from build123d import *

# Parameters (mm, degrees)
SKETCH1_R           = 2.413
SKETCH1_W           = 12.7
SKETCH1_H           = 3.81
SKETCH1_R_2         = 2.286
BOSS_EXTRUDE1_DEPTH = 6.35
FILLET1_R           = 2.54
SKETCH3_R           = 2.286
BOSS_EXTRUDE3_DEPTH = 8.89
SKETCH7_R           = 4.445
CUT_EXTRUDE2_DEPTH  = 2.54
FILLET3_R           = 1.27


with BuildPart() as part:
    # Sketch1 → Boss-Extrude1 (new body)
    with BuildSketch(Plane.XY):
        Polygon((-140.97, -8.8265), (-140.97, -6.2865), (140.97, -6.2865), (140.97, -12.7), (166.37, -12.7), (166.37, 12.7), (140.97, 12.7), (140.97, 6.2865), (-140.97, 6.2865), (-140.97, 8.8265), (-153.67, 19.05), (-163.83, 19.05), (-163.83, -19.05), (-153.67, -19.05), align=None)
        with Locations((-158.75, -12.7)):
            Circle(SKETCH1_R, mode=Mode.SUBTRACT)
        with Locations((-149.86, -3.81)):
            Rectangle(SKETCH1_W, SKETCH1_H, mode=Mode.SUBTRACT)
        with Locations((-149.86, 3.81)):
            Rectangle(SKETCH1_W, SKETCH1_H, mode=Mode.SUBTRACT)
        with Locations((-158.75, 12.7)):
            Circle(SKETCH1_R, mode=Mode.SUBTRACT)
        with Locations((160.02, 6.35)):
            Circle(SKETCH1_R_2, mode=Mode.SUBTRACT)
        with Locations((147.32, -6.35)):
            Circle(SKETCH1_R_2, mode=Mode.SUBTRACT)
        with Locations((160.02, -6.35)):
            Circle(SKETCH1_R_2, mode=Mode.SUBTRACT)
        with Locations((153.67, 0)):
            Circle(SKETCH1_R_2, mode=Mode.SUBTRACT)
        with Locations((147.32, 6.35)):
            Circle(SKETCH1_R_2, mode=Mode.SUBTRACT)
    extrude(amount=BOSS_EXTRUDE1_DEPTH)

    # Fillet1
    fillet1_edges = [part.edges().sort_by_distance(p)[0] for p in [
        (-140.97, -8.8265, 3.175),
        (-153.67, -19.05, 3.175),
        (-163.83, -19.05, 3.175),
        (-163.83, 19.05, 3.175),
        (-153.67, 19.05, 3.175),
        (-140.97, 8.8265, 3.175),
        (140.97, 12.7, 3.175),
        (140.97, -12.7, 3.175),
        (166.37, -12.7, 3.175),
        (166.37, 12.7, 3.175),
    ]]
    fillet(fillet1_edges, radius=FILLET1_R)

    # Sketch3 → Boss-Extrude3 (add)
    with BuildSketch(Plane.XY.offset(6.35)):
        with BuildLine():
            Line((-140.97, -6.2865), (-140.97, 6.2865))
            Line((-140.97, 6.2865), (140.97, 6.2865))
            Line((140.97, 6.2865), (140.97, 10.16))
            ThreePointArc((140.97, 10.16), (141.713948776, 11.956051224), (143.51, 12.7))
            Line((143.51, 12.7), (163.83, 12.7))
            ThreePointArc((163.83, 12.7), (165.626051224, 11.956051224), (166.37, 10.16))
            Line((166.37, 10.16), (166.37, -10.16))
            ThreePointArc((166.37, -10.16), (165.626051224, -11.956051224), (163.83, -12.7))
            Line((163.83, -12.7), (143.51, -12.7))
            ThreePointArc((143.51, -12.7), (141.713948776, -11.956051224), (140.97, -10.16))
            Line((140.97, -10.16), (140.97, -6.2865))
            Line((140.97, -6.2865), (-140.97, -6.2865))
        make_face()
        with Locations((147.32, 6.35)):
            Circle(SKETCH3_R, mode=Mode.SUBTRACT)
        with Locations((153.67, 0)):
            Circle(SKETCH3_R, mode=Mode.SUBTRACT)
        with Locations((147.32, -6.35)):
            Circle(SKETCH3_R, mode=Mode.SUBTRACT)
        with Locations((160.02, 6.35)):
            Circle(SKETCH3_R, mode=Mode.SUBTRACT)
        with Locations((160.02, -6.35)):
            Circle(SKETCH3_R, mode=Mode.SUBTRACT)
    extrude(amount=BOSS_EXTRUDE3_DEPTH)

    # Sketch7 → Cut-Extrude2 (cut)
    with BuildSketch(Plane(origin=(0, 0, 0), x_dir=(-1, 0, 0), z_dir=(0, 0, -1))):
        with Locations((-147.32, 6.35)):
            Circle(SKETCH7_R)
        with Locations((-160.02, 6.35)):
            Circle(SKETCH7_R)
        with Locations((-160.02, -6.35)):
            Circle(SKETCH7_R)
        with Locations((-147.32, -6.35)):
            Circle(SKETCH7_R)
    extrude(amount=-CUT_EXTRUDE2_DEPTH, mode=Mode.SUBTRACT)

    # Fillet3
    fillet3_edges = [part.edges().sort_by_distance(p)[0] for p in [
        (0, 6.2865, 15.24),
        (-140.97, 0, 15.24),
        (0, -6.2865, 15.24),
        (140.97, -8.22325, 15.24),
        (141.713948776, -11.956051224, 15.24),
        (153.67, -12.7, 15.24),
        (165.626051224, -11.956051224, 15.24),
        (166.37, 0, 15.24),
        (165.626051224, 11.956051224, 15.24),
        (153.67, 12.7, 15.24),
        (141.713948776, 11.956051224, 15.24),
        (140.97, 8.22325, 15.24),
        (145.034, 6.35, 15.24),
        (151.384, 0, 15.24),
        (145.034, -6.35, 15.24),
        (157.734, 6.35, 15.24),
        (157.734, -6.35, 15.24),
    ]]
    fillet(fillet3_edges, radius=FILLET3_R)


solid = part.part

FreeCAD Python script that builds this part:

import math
import FreeCAD as App
import Part
import Sketcher
from FreeCAD import Vector
Q = App.Units.Quantity


def edges_at(feature, points):
    """Names of the edges that pass closest to the given points."""
    edges = feature.Shape.Edges
    near = lambda p: min(range(len(edges)), key=lambda i: edges[i].distToShape(Part.Vertex(*p))[0])
    return sorted({f"Edge{near(p) + 1}" for p in points})


def add_polygon(sketch, points):
    """Adds a closed chain of lines whose ends are joined by coincident constraints."""
    first, n = sketch.GeometryCount, len(points)
    for a, b in zip(points, points[1:] + points[:1]):
        sketch.addGeometry(Part.LineSegment(App.Vector(*a, 0), App.Vector(*b, 0)), False)
    for i in range(n):
        sketch.addConstraint(Sketcher.Constraint("Coincident", first + i, 2, first + (i + 1) % n, 1))

doc = App.newDocument("Part")
body = doc.addObject("PartDesign::Body", "Body")

sketch1 = body.newObject("Sketcher::SketchObject", "Sketch")
sketch1.AttachmentSupport = (doc.getObject("XY_Plane"), [""])
sketch1.MapMode = "FlatFace"
add_polygon(sketch1, [(-140.97, -8.8265), (-140.97, -6.2865), (140.97, -6.2865), (140.97, -12.7), (166.37, -12.7), (166.37, 12.7), (140.97, 12.7), (140.97, 6.2865), (-140.97, 6.2865), (-140.97, 8.8265), (-153.67, 19.05), (-163.83, 19.05), (-163.83, -19.05), (-153.67, -19.05)])
sketch1.addGeometry(Part.Circle(Vector(-158.75, -12.7, 0), Vector(0, 0, 1), 2.413), False)
add_polygon(sketch1, [(-143.51, -5.715), (-156.21, -5.715), (-156.21, -1.905), (-143.51, -1.905)])
sketch1.addGeometry(Part.Circle(Vector(147.32, -6.35, 0), Vector(0, 0, 1), 2.286), False)
sketch1.addGeometry(Part.Circle(Vector(160.02, -6.35, 0), Vector(0, 0, 1), 2.286), False)
add_polygon(sketch1, [(-143.51, 1.905), (-156.21, 1.905), (-156.21, 5.715), (-143.51, 5.715)])
sketch1.addGeometry(Part.Circle(Vector(-158.75, 12.7, 0), Vector(0, 0, 1), 2.413), False)
sketch1.addGeometry(Part.Circle(Vector(153.67, 0, 0), Vector(0, 0, 1), 2.286), False)
sketch1.addGeometry(Part.Circle(Vector(147.32, 6.35, 0), Vector(0, 0, 1), 2.286), False)
sketch1.addGeometry(Part.Circle(Vector(160.02, 6.35, 0), Vector(0, 0, 1), 2.286), False)
sketch1.addConstraint([
    Sketcher.Constraint("Vertical", 0),
    Sketcher.Constraint("Horizontal", 1),
    Sketcher.Constraint("Vertical", 2),
    Sketcher.Constraint("Horizontal", 3),
    Sketcher.Constraint("Vertical", 4),
    Sketcher.Constraint("Horizontal", 5),
    Sketcher.Constraint("Vertical", 6),
    Sketcher.Constraint("Horizontal", 7),
    Sketcher.Constraint("Vertical", 8),
    Sketcher.Constraint("Horizontal", 10),
    Sketcher.Constraint("Vertical", 11),
    Sketcher.Constraint("Horizontal", 12),
    Sketcher.Constraint("Horizontal", 15),
    Sketcher.Constraint("Vertical", 16),
    Sketcher.Constraint("Horizontal", 17),
    Sketcher.Constraint("Vertical", 18),
    Sketcher.Constraint("Horizontal", 21),
    Sketcher.Constraint("Vertical", 22),
    Sketcher.Constraint("Horizontal", 23),
    Sketcher.Constraint("Vertical", 24),
    Sketcher.Constraint("Equal", 19, 20),
    Sketcher.Constraint("Equal", 14, 25),
    Sketcher.Constraint("Equal", 20, 26),
    Sketcher.Constraint("Equal", 26, 27),
    Sketcher.Constraint("Equal", 27, 28),
    Sketcher.Constraint("Symmetric", 0, 2, 6, 2, -1, 1),
    Sketcher.Constraint("Symmetric", 14, 3, 25, 3, -1),
    Sketcher.Constraint("Symmetric", 19, 3, 27, 3, -1),
    Sketcher.Constraint("Symmetric", 20, 3, 28, 3, -1),
    Sketcher.Constraint("Symmetric", 2, 2, 5, 2, -1),
    Sketcher.Constraint("Symmetric", 9, 2, 12, 2, -1),
    Sketcher.Constraint("Symmetric", 8, 2, 13, 2, -1),
    Sketcher.Constraint("Symmetric", 16, 2, 21, 2, -1),
    Sketcher.Constraint("Symmetric", 18, 2, 23, 2, -1),
    Sketcher.Constraint("PointOnObject", 26, 3, -1),
    Sketcher.Constraint("Horizontal", 19, 3, 20, 3),
    Sketcher.Constraint("Horizontal", 14, 3, 2, 2),
    Sketcher.Constraint("Equal", 5, 4),
    Sketcher.Constraint("Diameter", 14, Q("0.19 in")),
    Sketcher.Constraint("Diameter", 19, Q("0.18 in")),
    Sketcher.Constraint("DistanceX", 3, 1, 3, 2, Q("1 in")),
    Sketcher.Constraint("DistanceX", 1, 1, 1, 2, Q("11.1 in")),
    Sketcher.Constraint("DistanceX", 10, 2, 10, 1, Q("0.4 in")),
    Sketcher.Constraint("DistanceX", 15, 2, 15, 1, Q("0.5 in")),
    Sketcher.Constraint("DistanceY", 0, 1, 0, 2, Q("0.1 in")),
    Sketcher.Constraint("DistanceY", 11, 2, 11, 1, Q("1.5 in")),
    Sketcher.Constraint("DistanceY", 16, 1, 16, 2, Q("0.15 in")),
    Sketcher.Constraint("DistanceX", -1, 1, 19, 3, Q("5.8 in")),
    Sketcher.Constraint("DistanceX", -1, 1, 20, 3, Q("6.3 in")),
    Sketcher.Constraint("DistanceX", 14, 3, 26, 3, Q("12.3 in")),
    Sketcher.Constraint("DistanceY", 19, 3, 27, 3, Q("0.5 in")),
    Sketcher.Constraint("DistanceX", 14, 3, 0, 2, Q("0.7 in")),
    Sketcher.Constraint("DistanceX", 25, 3, 9, 2, Q("0.2 in")),
    Sketcher.Constraint("DistanceX", 14, 3, 15, 2, Q("0.1 in")),
    Sketcher.Constraint("DistanceY", 15, 2, 21, 2, Q("0.3 in")),
    Sketcher.Constraint("DistanceY", 2, 2, 2, 1, Q("0.2525 in")),
])
pad1 = body.newObject("PartDesign::Pad", "Pad")
pad1.Profile = sketch1
pad1.Length = Q("0.25 in")
doc.recompute()

fillet = body.newObject("PartDesign::Fillet", "Fillet")
fillet.Base = (pad1, edges_at(pad1, [
    (-140.97, -8.826, 3.175),
    (-153.67, -19.05, 3.175),
    (-163.83, -19.05, 3.175),
    (-163.83, 19.05, 3.175),
    (-153.67, 19.05, 3.175),
    (-140.97, 8.826, 3.175),
    (140.97, 12.7, 3.175),
    (140.97, -12.7, 3.175),
    (166.37, -12.7, 3.175),
    (166.37, 12.7, 3.175),
]))
fillet.Radius = Q("0.1 in")

sketch2 = body.newObject("Sketcher::SketchObject", "Sketch001")
sketch2.AttachmentSupport = (doc.getObject("XY_Plane"), [""])
sketch2.MapMode = "FlatFace"
sketch2.AttachmentOffset = App.Placement(Vector(0, 0, 0.25 * 25.4), App.Rotation())
sketch2.addGeometry([
    Part.LineSegment(Vector(-140.97, 6.2865, 0), Vector(-140.97, -6.2865, 0)),
    Part.LineSegment(Vector(-140.97, -6.2865, 0), Vector(140.97, -6.2865, 0)),
    Part.LineSegment(Vector(140.97, -6.2865, 0), Vector(140.97, -10.16, 0)),
    Part.ArcOfCircle(Part.Circle(Vector(143.51, -10.16, 0), Vector(0, 0, 1), 2.54), math.radians(-180), math.radians(-90)),
    Part.LineSegment(Vector(143.51, -12.7, 0), Vector(163.83, -12.7, 0)),
    Part.ArcOfCircle(Part.Circle(Vector(163.83, -10.16, 0), Vector(0, 0, 1), 2.54), math.radians(-90), math.radians(0)),
    Part.LineSegment(Vector(166.37, -10.16, 0), Vector(166.37, 10.16, 0)),
    Part.ArcOfCircle(Part.Circle(Vector(163.83, 10.16, 0), Vector(0, 0, 1), 2.54), math.radians(0), math.radians(90)),
    Part.LineSegment(Vector(163.83, 12.7, 0), Vector(143.51, 12.7, 0)),
    Part.ArcOfCircle(Part.Circle(Vector(143.51, 10.16, 0), Vector(0, 0, 1), 2.54), math.radians(90), math.radians(180)),
    Part.LineSegment(Vector(140.97, 10.16, 0), Vector(140.97, 6.2865, 0)),
    Part.LineSegment(Vector(140.97, 6.2865, 0), Vector(-140.97, 6.2865, 0)),
    Part.Circle(Vector(160.02, -6.35, 0), Vector(0, 0, 1), 2.286),
    Part.Circle(Vector(147.32, -6.35, 0), Vector(0, 0, 1), 2.286),
    Part.Circle(Vector(160.02, 6.35, 0), Vector(0, 0, 1), 2.286),
    Part.Circle(Vector(153.67, 0, 0), Vector(0, 0, 1), 2.286),
    Part.Circle(Vector(147.32, 6.35, 0), Vector(0, 0, 1), 2.286),
], False)
sketch2.addConstraint([
    Sketcher.Constraint("Coincident", 0, 2, 1, 1),
    Sketcher.Constraint("Coincident", 1, 2, 2, 1),
    Sketcher.Constraint("Tangent", 2, 2, 3, 1),
    Sketcher.Constraint("Tangent", 3, 2, 4, 1),
    Sketcher.Constraint("Tangent", 4, 2, 5, 1),
    Sketcher.Constraint("Tangent", 5, 2, 6, 1),
    Sketcher.Constraint("Tangent", 6, 2, 7, 1),
    Sketcher.Constraint("Tangent", 7, 2, 8, 1),
    Sketcher.Constraint("Tangent", 8, 2, 9, 1),
    Sketcher.Constraint("Tangent", 9, 2, 10, 1),
    Sketcher.Constraint("Coincident", 10, 2, 11, 1),
    Sketcher.Constraint("Coincident", 11, 2, 0, 1),
    Sketcher.Constraint("Vertical", 0),
    Sketcher.Constraint("Horizontal", 1),
    Sketcher.Constraint("Vertical", 2),
    Sketcher.Constraint("Horizontal", 4),
    Sketcher.Constraint("Vertical", 6),
    Sketcher.Constraint("Horizontal", 8),
    Sketcher.Constraint("Vertical", 10),
    Sketcher.Constraint("Horizontal", 11),
    Sketcher.Constraint("Equal", 3, 5),
    Sketcher.Constraint("Equal", 5, 7),
    Sketcher.Constraint("Equal", 7, 9),
    Sketcher.Constraint("Equal", 12, 13),
    Sketcher.Constraint("Equal", 13, 14),
    Sketcher.Constraint("Equal", 14, 15),
    Sketcher.Constraint("Equal", 15, 16),
    Sketcher.Constraint("Symmetric", 0, 2, 10, 2, -1, 1),
    Sketcher.Constraint("Symmetric", 3, 3, 9, 3, -1),
    Sketcher.Constraint("Symmetric", 12, 3, 14, 3, -1),
    Sketcher.Constraint("Symmetric", 13, 3, 16, 3, -1),
    Sketcher.Constraint("PointOnObject", 15, 3, -1),
    Sketcher.Constraint("Horizontal", 12, 3, 13, 3),
    Sketcher.Constraint("Equal", 8, 6),
    Sketcher.Constraint("Radius", 3, Q("0.1 in")),
    Sketcher.Constraint("Diameter", 12, Q("0.18 in")),
    Sketcher.Constraint("DistanceX", 1, 1, 1, 2, Q("11.1 in")),
    Sketcher.Constraint("DistanceX", 4, 1, 4, 2, Q("0.8 in")),
    Sketcher.Constraint("DistanceX", -1, 1, 12, 3, Q("6.3 in")),
    Sketcher.Constraint("DistanceX", -1, 1, 13, 3, Q("5.8 in")),
    Sketcher.Constraint("DistanceY", 12, 3, 14, 3, Q("0.5 in")),
    Sketcher.Constraint("DistanceX", 3, 3, 15, 3, Q("0.4 in")),
    Sketcher.Constraint("DistanceY", 0, 2, 0, 1, Q("0.495 in")),
])
pad2 = body.newObject("PartDesign::Pad", "Pad001")
pad2.Profile = sketch2
pad2.Length = Q("0.35 in")

sketch3 = body.newObject("Sketcher::SketchObject", "Sketch002")
sketch3.AttachmentSupport = (doc.getObject("XY_Plane"), [""])
sketch3.MapMode = "FlatFace"
sketch3.addGeometry([
    Part.Circle(Vector(147.32, 6.35, 0), Vector(0, 0, 1), 4.445),
    Part.Circle(Vector(160.02, 6.35, 0), Vector(0, 0, 1), 4.445),
    Part.Circle(Vector(160.02, -6.35, 0), Vector(0, 0, 1), 4.445),
    Part.Circle(Vector(147.32, -6.35, 0), Vector(0, 0, 1), 4.445),
], False)
sketch3.addConstraint([
    Sketcher.Constraint("Equal", 0, 1),
    Sketcher.Constraint("Equal", 1, 2),
    Sketcher.Constraint("Equal", 2, 3),
    Sketcher.Constraint("Symmetric", 1, 3, 2, 3, -1),
    Sketcher.Constraint("Symmetric", 0, 3, 3, 3, -1),
    Sketcher.Constraint("Horizontal", 0, 3, 1, 3),
    Sketcher.Constraint("Diameter", 0, Q("0.35 in")),
    Sketcher.Constraint("DistanceX", -1, 1, 0, 3, Q("5.8 in")),
    Sketcher.Constraint("DistanceX", -1, 1, 1, 3, Q("6.3 in")),
    Sketcher.Constraint("DistanceY", 2, 3, 1, 3, Q("0.5 in")),
])
pocket1 = body.newObject("PartDesign::Pocket", "Pocket")
pocket1.Profile = sketch3
pocket1.Length = Q("0.1 in")
pocket1.Reversed = True
doc.recompute()

fillet2 = body.newObject("PartDesign::Fillet", "Fillet001")
fillet2.Base = (pocket1, edges_at(pocket1, [
    (0, 6.287, 15.24),
    (-140.97, 0, 15.24),
    (0, -6.287, 15.24),
    (140.97, -8.223, 15.24),
    (141.714, -11.956, 15.24),
    (153.67, -12.7, 15.24),
    (165.626, -11.956, 15.24),
    (166.37, 0, 15.24),
    (165.626, 11.956, 15.24),
    (153.67, 12.7, 15.24),
    (141.714, 11.956, 15.24),
    (140.97, 8.223, 15.24),
    (145.034, 6.35, 15.24),
    (151.384, 0, 15.24),
    (145.034, -6.35, 15.24),
    (157.734, 6.35, 15.24),
    (157.734, -6.35, 15.24),
]))
fillet2.Radius = Q("0.05 in")

doc.recompute()
